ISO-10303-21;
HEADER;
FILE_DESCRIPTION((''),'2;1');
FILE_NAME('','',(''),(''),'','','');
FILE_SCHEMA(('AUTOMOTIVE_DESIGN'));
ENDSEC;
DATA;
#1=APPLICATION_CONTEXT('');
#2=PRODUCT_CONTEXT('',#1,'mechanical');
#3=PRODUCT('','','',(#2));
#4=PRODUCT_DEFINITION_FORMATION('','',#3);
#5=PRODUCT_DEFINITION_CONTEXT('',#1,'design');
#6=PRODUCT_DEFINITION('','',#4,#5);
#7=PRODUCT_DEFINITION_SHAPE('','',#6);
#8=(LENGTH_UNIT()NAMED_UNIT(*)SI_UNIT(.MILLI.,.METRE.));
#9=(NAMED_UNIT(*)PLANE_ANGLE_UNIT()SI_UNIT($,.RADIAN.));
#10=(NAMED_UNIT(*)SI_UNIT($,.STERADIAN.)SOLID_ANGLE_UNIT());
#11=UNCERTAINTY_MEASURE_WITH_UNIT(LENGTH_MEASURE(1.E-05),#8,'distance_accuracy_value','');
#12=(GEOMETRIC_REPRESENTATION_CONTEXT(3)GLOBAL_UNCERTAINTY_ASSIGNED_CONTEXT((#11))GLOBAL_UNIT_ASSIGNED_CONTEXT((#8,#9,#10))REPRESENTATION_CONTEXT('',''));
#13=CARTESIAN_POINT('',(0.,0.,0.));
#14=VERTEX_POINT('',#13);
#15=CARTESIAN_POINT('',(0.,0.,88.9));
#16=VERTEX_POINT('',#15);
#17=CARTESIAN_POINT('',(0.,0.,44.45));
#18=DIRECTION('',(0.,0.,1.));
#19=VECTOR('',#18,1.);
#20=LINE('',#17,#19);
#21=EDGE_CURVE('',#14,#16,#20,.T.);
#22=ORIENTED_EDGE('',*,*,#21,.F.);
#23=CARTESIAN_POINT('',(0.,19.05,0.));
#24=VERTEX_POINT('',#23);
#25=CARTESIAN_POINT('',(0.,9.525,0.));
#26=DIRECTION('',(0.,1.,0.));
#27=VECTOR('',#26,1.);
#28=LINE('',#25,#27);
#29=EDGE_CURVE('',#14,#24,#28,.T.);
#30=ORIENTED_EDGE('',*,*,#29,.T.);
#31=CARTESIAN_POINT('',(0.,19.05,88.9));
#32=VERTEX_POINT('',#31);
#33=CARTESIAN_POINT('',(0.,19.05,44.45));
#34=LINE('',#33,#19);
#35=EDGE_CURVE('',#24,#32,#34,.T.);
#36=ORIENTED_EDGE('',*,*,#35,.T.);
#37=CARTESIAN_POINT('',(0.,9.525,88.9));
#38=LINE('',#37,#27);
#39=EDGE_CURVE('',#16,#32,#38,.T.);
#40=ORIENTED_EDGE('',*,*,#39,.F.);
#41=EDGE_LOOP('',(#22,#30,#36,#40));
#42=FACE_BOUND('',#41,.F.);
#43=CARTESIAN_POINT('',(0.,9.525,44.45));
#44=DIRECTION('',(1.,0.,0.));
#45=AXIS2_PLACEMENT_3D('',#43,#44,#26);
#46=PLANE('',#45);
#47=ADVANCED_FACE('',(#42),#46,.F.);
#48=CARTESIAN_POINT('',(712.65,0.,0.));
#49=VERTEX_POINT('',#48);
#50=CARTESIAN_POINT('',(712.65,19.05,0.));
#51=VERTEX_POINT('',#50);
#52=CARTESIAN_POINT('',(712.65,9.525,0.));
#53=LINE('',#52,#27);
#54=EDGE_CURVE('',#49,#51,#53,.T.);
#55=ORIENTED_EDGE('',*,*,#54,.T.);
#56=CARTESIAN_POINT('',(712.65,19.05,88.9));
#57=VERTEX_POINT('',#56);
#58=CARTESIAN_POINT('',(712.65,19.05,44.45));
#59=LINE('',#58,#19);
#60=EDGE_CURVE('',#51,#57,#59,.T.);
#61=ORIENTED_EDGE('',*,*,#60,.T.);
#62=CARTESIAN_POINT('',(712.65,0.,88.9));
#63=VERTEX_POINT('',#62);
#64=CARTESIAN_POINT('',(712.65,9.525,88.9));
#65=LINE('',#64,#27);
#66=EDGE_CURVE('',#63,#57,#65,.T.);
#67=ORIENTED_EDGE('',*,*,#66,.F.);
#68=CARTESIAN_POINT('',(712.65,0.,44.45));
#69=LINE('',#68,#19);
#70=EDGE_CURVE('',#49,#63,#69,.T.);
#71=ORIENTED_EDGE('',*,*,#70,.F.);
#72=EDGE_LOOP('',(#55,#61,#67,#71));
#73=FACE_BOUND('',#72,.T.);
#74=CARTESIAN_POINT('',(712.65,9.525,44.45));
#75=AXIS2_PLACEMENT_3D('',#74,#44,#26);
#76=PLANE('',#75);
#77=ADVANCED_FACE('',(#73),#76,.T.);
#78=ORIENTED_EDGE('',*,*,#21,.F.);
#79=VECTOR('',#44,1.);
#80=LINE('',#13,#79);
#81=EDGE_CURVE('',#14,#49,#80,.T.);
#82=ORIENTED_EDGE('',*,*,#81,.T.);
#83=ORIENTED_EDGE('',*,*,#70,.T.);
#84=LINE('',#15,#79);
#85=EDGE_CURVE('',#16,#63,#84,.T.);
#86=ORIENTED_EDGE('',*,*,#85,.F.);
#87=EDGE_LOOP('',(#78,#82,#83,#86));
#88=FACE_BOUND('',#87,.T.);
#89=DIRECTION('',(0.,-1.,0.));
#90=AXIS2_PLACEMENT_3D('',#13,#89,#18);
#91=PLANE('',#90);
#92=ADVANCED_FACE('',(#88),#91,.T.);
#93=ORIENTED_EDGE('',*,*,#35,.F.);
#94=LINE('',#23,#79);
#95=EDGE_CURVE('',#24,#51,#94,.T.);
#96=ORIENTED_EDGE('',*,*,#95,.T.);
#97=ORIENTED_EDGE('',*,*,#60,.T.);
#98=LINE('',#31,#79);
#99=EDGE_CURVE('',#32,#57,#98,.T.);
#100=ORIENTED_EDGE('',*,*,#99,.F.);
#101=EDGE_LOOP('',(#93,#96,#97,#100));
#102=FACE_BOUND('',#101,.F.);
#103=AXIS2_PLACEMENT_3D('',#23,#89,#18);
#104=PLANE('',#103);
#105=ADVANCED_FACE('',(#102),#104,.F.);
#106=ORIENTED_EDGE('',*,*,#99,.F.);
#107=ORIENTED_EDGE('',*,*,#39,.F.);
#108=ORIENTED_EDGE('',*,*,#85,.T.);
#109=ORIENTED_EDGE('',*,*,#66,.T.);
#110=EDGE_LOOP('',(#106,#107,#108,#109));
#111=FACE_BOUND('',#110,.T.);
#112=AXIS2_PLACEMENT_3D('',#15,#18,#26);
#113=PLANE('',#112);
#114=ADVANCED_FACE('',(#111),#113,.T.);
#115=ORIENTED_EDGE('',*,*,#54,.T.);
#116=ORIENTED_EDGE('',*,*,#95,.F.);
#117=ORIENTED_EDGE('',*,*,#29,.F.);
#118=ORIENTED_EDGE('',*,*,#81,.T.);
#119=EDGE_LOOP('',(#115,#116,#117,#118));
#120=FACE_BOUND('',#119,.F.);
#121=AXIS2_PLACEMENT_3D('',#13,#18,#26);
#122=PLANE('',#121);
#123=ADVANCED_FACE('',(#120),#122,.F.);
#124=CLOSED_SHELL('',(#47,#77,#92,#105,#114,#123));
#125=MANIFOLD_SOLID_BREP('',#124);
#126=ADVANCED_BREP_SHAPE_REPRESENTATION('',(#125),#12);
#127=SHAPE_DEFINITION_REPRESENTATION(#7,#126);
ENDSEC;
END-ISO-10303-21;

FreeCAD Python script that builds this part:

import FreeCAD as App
import Part
import Sketcher
Q = App.Units.Quantity


def add_polygon(sketch, points):
    """Adds a closed chain of lines whose ends are joined by coincident constraints."""
    first, n = sketch.GeometryCount, len(points)
    for a, b in zip(points, points[1:] + points[:1]):
        sketch.addGeometry(Part.LineSegment(App.Vector(*a, 0), App.Vector(*b, 0)), False)
    for i in range(n):
        sketch.addConstraint(Sketcher.Constraint("Coincident", first + i, 2, first + (i + 1) % n, 1))

doc = App.newDocument("Part")
body = doc.addObject("PartDesign::Body", "Body")

# Sketch on YZ plane
sketch1 = doc.addObject("Sketcher::SketchObject", "Sketch")
body.addObject(sketch1)
sketch1.AttachmentSupport = (doc.YZ_Plane, [""])
sketch1.MapMode = "FlatFace"
add_polygon(sketch1, [(0, 89), (0, 0), (19, 0), (19, 89)])  # lines 0-3
sketch1.addConstraint([
    Sketcher.Constraint("Vertical", 0),
    Sketcher.Constraint("Horizontal", 1),
    Sketcher.Constraint("Vertical", 2),
    Sketcher.Constraint("Horizontal", 3),
    Sketcher.Constraint("Coincident", 0, 2, -1, 1),
    Sketcher.Constraint("DistanceY", 0, 2, 0, 1, Q("3.5 in")),
    Sketcher.Constraint("DistanceX", 1, 1, 1, 2, Q("0.75 in")),
])
pad1 = doc.addObject("PartDesign::Pad", "Pad")
body.addObject(pad1)
pad1.Profile = sketch1
pad1.Length = 712.65

doc.recompute()
